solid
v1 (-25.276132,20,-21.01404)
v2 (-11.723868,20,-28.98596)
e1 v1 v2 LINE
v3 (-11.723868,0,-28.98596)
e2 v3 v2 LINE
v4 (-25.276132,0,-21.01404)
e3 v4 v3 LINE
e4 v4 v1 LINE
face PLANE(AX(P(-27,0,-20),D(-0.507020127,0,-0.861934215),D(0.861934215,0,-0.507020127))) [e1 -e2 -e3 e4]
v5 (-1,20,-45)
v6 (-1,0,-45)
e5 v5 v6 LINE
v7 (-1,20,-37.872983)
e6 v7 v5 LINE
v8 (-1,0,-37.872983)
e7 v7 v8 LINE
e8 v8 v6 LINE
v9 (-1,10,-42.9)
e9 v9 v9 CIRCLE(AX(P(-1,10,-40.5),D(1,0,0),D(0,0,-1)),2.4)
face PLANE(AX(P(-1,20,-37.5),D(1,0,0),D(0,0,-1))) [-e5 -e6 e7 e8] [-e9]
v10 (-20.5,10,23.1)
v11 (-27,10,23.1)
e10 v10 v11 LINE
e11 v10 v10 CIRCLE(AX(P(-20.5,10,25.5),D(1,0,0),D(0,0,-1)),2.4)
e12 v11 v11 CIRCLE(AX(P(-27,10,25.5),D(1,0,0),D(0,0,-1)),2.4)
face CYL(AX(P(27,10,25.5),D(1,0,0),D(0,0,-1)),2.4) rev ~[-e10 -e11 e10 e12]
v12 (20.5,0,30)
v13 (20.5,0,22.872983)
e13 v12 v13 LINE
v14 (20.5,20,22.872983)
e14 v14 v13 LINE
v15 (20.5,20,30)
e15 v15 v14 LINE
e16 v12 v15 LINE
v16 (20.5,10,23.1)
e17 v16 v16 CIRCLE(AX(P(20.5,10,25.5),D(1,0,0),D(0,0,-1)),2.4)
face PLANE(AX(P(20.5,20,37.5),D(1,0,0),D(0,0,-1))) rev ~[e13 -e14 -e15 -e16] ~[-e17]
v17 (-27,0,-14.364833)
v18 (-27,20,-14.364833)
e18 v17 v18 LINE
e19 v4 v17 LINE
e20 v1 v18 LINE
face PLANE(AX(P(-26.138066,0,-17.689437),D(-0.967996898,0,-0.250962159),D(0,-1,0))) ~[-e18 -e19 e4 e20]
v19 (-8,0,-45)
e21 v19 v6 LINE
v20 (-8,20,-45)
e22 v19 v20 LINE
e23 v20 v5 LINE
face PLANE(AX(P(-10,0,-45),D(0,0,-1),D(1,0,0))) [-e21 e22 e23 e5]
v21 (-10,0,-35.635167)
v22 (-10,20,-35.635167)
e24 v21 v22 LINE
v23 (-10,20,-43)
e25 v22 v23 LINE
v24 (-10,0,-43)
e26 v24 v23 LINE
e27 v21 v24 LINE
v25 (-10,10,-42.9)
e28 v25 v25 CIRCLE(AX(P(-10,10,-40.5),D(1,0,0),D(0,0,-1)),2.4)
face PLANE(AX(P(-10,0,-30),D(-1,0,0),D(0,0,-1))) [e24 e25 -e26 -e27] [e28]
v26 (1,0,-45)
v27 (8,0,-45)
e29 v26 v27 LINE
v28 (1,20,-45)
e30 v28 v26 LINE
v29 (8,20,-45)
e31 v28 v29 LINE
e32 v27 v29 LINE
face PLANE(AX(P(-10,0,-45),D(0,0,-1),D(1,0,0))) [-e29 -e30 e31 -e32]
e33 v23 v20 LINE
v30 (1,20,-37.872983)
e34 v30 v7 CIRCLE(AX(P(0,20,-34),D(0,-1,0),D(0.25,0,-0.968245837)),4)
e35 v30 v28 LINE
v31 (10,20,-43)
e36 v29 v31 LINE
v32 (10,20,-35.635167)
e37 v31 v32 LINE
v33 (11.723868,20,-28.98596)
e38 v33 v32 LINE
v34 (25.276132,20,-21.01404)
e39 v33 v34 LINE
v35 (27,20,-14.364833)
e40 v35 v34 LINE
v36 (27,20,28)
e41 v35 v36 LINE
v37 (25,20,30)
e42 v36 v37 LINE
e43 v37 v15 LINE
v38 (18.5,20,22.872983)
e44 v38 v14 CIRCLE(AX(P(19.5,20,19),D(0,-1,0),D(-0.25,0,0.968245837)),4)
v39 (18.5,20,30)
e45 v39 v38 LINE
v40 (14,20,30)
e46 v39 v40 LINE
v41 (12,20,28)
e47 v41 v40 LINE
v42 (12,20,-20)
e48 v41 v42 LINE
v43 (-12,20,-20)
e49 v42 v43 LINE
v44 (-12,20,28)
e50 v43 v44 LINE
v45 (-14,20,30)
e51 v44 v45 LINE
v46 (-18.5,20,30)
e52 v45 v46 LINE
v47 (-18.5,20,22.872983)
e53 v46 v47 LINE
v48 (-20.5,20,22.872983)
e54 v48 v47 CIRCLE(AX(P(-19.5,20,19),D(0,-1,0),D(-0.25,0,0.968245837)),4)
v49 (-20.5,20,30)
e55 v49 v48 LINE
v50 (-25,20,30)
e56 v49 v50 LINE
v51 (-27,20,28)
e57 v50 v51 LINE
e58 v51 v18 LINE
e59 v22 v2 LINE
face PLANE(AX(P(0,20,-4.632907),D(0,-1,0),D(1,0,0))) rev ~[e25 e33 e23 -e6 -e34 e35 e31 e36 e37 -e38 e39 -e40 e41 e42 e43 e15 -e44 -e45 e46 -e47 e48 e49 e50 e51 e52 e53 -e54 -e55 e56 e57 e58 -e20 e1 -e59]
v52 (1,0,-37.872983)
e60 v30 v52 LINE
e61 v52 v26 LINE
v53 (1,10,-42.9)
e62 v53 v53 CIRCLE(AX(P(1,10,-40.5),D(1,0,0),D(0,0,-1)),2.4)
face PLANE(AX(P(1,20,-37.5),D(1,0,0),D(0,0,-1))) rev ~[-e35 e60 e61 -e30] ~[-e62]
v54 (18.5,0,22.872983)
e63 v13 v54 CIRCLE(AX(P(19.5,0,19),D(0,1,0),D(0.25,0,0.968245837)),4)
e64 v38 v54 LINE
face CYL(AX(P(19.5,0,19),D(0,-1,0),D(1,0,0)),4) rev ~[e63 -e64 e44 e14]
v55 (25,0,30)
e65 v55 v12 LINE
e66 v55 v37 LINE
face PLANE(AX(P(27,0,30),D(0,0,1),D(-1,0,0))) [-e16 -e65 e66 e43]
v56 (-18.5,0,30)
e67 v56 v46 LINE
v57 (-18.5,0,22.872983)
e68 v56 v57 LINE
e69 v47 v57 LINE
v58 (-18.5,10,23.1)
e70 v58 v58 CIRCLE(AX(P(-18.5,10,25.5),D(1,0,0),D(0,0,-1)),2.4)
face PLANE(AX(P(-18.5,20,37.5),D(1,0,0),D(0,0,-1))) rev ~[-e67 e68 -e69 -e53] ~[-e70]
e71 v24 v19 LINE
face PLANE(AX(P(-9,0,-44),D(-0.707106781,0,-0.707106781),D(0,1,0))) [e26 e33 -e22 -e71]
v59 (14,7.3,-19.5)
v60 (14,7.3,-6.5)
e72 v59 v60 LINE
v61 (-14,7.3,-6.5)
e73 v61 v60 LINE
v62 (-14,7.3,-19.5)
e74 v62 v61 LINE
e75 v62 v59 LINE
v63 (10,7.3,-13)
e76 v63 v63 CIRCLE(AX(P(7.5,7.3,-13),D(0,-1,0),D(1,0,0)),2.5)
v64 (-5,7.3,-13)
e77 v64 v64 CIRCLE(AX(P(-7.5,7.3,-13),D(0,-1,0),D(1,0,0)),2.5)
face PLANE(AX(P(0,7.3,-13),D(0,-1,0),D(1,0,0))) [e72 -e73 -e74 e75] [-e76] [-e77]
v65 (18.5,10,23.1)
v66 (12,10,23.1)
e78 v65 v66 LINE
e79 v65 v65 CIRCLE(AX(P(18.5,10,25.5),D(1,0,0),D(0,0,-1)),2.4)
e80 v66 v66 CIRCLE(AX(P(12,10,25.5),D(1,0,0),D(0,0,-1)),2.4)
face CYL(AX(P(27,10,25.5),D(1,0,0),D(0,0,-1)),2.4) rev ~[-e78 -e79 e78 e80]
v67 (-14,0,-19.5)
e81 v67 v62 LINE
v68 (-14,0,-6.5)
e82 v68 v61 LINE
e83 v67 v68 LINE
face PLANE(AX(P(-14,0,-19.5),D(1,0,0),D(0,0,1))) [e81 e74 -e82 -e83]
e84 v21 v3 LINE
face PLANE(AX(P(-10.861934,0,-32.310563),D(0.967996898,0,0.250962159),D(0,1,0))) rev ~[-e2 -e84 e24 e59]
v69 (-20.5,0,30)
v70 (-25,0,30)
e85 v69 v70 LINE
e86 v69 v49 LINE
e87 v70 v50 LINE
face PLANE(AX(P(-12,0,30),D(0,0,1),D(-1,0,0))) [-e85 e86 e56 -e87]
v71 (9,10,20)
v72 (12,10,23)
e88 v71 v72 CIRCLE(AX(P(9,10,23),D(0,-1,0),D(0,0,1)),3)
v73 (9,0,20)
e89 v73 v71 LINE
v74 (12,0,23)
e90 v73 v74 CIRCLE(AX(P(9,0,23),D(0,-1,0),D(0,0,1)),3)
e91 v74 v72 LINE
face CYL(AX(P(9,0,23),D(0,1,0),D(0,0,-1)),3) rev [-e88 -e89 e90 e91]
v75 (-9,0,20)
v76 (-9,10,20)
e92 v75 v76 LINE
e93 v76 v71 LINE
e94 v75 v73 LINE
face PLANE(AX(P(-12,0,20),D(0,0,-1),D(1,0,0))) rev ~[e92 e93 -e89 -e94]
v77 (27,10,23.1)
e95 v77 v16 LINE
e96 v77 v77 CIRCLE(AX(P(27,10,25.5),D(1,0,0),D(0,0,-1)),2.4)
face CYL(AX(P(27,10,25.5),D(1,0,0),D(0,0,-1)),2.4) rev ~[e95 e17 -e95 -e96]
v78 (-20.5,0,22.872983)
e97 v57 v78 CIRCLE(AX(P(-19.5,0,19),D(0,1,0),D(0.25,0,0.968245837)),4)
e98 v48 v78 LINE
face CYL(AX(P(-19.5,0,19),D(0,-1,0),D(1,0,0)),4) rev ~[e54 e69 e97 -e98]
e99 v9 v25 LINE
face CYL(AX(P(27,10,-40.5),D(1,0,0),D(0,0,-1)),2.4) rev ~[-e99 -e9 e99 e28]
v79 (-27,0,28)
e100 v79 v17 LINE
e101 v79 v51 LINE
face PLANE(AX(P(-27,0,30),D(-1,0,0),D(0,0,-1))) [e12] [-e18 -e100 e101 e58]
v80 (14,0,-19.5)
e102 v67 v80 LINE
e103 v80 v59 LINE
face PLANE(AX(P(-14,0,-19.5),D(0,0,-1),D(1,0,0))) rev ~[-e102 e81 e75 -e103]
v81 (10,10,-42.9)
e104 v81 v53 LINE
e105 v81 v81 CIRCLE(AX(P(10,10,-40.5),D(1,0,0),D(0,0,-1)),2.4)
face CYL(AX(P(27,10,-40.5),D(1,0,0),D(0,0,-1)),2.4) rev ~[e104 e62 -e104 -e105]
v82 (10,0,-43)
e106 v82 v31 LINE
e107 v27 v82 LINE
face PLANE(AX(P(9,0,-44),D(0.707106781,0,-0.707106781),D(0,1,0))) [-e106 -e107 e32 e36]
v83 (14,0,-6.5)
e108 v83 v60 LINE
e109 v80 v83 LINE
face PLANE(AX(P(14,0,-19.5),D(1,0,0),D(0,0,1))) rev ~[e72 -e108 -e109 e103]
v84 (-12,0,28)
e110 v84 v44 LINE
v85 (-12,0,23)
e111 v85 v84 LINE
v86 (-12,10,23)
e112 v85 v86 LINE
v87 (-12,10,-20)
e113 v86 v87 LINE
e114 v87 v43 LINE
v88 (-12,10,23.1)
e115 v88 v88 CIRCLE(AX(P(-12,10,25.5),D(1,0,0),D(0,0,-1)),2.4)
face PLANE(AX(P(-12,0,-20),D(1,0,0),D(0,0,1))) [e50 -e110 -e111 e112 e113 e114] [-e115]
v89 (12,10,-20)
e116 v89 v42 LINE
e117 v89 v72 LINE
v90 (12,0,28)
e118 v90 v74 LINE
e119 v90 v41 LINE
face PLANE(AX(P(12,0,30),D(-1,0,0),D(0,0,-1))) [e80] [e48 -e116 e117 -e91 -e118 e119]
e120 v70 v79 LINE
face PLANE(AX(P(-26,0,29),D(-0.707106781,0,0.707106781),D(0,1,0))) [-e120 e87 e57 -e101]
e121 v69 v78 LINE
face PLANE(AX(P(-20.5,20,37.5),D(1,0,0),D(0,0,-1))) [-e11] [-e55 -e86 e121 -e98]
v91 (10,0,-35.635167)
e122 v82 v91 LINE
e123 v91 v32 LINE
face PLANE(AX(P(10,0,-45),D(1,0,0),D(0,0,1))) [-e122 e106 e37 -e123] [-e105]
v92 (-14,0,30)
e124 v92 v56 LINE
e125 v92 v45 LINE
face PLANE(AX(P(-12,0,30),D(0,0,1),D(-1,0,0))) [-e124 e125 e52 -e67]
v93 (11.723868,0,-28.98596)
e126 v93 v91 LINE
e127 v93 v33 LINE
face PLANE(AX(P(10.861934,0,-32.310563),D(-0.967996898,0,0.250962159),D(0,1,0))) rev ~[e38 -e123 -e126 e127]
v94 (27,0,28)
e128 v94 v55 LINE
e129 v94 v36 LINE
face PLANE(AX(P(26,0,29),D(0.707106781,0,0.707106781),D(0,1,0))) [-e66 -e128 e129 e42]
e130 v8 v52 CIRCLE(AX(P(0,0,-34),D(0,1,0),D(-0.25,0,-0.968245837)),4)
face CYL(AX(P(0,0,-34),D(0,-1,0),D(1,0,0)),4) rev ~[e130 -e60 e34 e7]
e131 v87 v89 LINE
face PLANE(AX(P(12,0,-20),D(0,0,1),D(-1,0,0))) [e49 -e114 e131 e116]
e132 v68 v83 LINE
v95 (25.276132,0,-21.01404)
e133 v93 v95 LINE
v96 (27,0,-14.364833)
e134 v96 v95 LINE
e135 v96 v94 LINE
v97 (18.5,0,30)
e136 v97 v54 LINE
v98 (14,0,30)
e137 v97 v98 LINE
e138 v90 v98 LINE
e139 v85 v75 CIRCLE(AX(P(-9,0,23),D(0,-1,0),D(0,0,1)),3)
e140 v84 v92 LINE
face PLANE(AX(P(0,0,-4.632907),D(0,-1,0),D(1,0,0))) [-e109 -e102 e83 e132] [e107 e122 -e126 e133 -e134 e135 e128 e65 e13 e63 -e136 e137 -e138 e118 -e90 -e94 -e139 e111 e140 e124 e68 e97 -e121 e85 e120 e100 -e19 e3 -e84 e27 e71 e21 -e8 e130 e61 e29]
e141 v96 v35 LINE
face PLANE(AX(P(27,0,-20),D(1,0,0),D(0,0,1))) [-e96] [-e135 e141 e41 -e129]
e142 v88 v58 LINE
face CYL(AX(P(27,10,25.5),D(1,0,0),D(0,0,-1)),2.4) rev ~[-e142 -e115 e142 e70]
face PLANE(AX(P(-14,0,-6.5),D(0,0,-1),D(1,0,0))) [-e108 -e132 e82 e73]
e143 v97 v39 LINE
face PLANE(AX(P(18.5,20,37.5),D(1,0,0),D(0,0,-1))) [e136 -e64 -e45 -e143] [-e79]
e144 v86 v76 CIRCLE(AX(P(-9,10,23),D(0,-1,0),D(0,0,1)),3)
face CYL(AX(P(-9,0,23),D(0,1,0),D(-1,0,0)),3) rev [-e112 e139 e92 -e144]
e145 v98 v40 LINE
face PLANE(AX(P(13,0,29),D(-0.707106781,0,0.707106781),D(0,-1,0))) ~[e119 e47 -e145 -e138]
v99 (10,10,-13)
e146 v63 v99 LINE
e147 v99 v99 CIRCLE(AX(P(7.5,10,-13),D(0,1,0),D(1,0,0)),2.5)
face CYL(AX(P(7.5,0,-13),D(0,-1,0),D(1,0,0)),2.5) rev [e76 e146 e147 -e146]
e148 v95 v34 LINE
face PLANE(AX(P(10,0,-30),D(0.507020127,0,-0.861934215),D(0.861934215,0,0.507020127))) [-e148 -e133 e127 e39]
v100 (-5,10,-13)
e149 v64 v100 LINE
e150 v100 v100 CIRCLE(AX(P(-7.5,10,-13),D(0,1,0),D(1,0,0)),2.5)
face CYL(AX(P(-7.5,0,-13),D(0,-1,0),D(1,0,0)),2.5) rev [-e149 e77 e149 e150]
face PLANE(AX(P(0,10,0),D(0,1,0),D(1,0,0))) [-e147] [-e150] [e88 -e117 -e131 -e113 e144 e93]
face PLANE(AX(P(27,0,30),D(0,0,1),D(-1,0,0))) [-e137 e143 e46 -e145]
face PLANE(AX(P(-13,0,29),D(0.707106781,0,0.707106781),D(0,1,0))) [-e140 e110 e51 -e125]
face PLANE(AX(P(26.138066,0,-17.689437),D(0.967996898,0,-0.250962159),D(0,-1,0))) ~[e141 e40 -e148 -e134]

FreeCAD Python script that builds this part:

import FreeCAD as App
import Part
import Sketcher

V = App.Vector
Q = App.Units.Quantity


def edges_at(feature, points):
    """Names of the edges that pass closest to the given points."""
    edges = feature.Shape.Edges
    near = lambda p: min(range(len(edges)), key=lambda i: edges[i].distToShape(Part.Vertex(*p))[0])
    return sorted({f"Edge{near(p) + 1}" for p in points})


def add_polygon(sketch, points):
    """Adds a closed chain of lines whose ends are joined by coincident constraints."""
    first, n = sketch.GeometryCount, len(points)
    for a, b in zip(points, points[1:] + points[:1]):
        sketch.addGeometry(Part.LineSegment(App.Vector(*a, 0), App.Vector(*b, 0)), False)
    for i in range(n):
        sketch.addConstraint(Sketcher.Constraint("Coincident", first + i, 2, first + (i + 1) % n, 1))

doc = App.newDocument("Part")
body = doc.addObject("PartDesign::Body", "Body")

# Sketch on XZ plane
sketch1 = doc.addObject("Sketcher::SketchObject", "Sketch")
body.addObject(sketch1)
sketch1.AttachmentSupport = (doc.XZ_Plane, [""])
sketch1.MapMode = "FlatFace"
add_polygon(sketch1, [(-12, -20), (-12, 20), (12, 20), (12, -20)])  # lines 0-3
sketch1.addGeometry(Part.Circle(V(-7.5, -13, 0), V(0, 0, 1), 2.5), False)  # 4
sketch1.addGeometry(Part.Circle(V(7.5, -13, 0), V(0, 0, 1), 2.5), False)  # 5
sketch1.addConstraint(Sketcher.Constraint("Vertical", 0))
sketch1.addConstraint(Sketcher.Constraint("Horizontal", 1))
sketch1.addConstraint(Sketcher.Constraint("Vertical", 2))
sketch1.addConstraint(Sketcher.Constraint("Horizontal", 3))
sketch1.addConstraint(Sketcher.Constraint("Equal", 4, 5))
sketch1.addConstraint(Sketcher.Constraint("Symmetric", 0, 2, 2, 2, -1, 1))
sketch1.addConstraint(Sketcher.Constraint("Symmetric", 4, 3, 5, 3, -2))
sketch1.addConstraint(Sketcher.Constraint("Diameter", 4, Q("5 mm")))
sketch1.addConstraint(Sketcher.Constraint("DistanceX", 1, 1, 1, 2, Q("24 mm")))
sketch1.addConstraint(Sketcher.Constraint("DistanceY", 0, 1, 0, 2, Q("40 mm")))
sketch1.addConstraint(Sketcher.Constraint("DistanceY", 4, 3, -1, 1, Q("13 mm")))
sketch1.addConstraint(Sketcher.Constraint("DistanceX", 4, 3, 5, 3, Q("15 mm")))
pad1 = doc.addObject("PartDesign::Pad", "Pad")
body.addObject(pad1)
pad1.Profile = sketch1
pad1.Length = 10
pad1.Reversed = True

# Sketch on XZ plane
sketch2 = doc.addObject("Sketcher::SketchObject", "Sketch001")
body.addObject(sketch2)
sketch2.AttachmentSupport = (doc.XZ_Plane, [""])
sketch2.MapMode = "FlatFace"
add_polygon(sketch2, [(-12, -20), (-12, 30), (-27, 30), (-27, -20), (-10, -30), (-10, -45), (10, -45), (10, -30), (27, -20), (27, 30), (12, 30), (12, -20)])  # lines 0-11
sketch2.addGeometry(Part.Circle(V(0, -34, 0), V(0, 0, 1), 4), False)  # 12
sketch2.addGeometry(Part.Circle(V(-19.5, 19, 0), V(0, 0, 1), 4), False)  # 13
sketch2.addGeometry(Part.Circle(V(19.5, 19, 0), V(0, 0, 1), 4), False)  # 14
sketch2.addConstraint(Sketcher.Constraint("Vertical", 0))
sketch2.addConstraint(Sketcher.Constraint("Horizontal", 1))
sketch2.addConstraint(Sketcher.Constraint("Vertical", 2))
sketch2.addConstraint(Sketcher.Constraint("Vertical", 4))
sketch2.addConstraint(Sketcher.Constraint("Horizontal", 5))
sketch2.addConstraint(Sketcher.Constraint("Vertical", 6))
sketch2.addConstraint(Sketcher.Constraint("Vertical", 8))
sketch2.addConstraint(Sketcher.Constraint("Horizontal", 9))
sketch2.addConstraint(Sketcher.Constraint("Vertical", 10))
sketch2.addConstraint(Sketcher.Constraint("Horizontal", 11))
sketch2.addConstraint(Sketcher.Constraint("Equal", 12, 13))
sketch2.addConstraint(Sketcher.Constraint("Equal", 13, 14))
sketch2.addConstraint(Sketcher.Constraint("Symmetric", 13, 3, 14, 3, -2))
sketch2.addConstraint(Sketcher.Constraint("Symmetric", 3, 2, 6, 2, -2))
sketch2.addConstraint(Sketcher.Constraint("Symmetric", 2, 2, 7, 2, -2))
sketch2.addConstraint(Sketcher.Constraint("Symmetric", 0, 2, 9, 2, -2))
sketch2.addConstraint(Sketcher.Constraint("PointOnObject", 12, 3, -2))
sketch2.addConstraint(Sketcher.Constraint("Horizontal", 7, 2, 10, 2))
sketch2.addConstraint(Sketcher.Constraint("Equal", 9, 4))
sketch2.addConstraint(Sketcher.Constraint("Diameter", 12, Q("8 mm")))
sketch2.addConstraint(Sketcher.Constraint("DistanceX", 1, 2, 1, 1, Q("15 mm")))
sketch2.addConstraint(Sketcher.Constraint("DistanceX", 5, 1, 5, 2, Q("20 mm")))
sketch2.addConstraint(Sketcher.Constraint("DistanceX", 11, 2, 11, 1, Q("24 mm")))
sketch2.addConstraint(Sketcher.Constraint("DistanceY", 0, 1, 0, 2, Q("50 mm")))
sketch2.addConstraint(Sketcher.Constraint("DistanceY", 12, 3, -1, 1, Q("34 mm")))
sketch2.addConstraint(Sketcher.Constraint("DistanceY", -1, 1, 13, 3, Q("19 mm")))
sketch2.addConstraint(Sketcher.Constraint("DistanceY", -1, 1, 0, 2, Q("30 mm")))
sketch2.addConstraint(Sketcher.Constraint("DistanceY", 3, 2, -1, 1, Q("30 mm")))
sketch2.addConstraint(Sketcher.Constraint("DistanceX", 13, 3, 14, 3, Q("39 mm")))
pad2 = doc.addObject("PartDesign::Pad", "Pad001")
body.addObject(pad2)
pad2.Profile = sketch2
pad2.Length = 20
pad2.Reversed = True

# Sketch on XZ plane
sketch3 = doc.addObject("Sketcher::SketchObject", "Sketch002")
body.addObject(sketch3)
sketch3.AttachmentSupport = (doc.XZ_Plane, [""])
sketch3.MapMode = "FlatFace"
sketch3.AttachmentOffset = App.Placement(V(0, 0, -20), App.Rotation())
add_polygon(sketch3, [(18.5, 22.5), (18.5, 37.5), (20.5, 37.5), (20.5, 22.5)])  # lines 0-3
add_polygon(sketch3, [(-20.5, 22.5), (-20.5, 37.5), (-18.5, 37.5), (-18.5, 22.5)])  # lines 4-7
add_polygon(sketch3, [(-1, -52.5), (-1, -37.5), (1, -37.5), (1, -52.5)])  # lines 8-11
sketch3.addConstraint(Sketcher.Constraint("Vertical", 0))
sketch3.addConstraint(Sketcher.Constraint("Horizontal", 1))
sketch3.addConstraint(Sketcher.Constraint("Vertical", 2))
sketch3.addConstraint(Sketcher.Constraint("Horizontal", 3))
sketch3.addConstraint(Sketcher.Constraint("Vertical", 4))
sketch3.addConstraint(Sketcher.Constraint("Horizontal", 5))
sketch3.addConstraint(Sketcher.Constraint("Vertical", 6))
sketch3.addConstraint(Sketcher.Constraint("Horizontal", 7))
sketch3.addConstraint(Sketcher.Constraint("Vertical", 8))
sketch3.addConstraint(Sketcher.Constraint("Horizontal", 9))
sketch3.addConstraint(Sketcher.Constraint("Vertical", 10))
sketch3.addConstraint(Sketcher.Constraint("Horizontal", 11))
sketch3.addConstraint(Sketcher.Constraint("Symmetric", 1, 2, 4, 2, -2))
sketch3.addConstraint(Sketcher.Constraint("Symmetric", 3, 2, 6, 2, -2))
sketch3.addConstraint(Sketcher.Constraint("Equal", 7, 9))
sketch3.addConstraint(Sketcher.Constraint("Equal", 6, 8))
sketch3.addConstraint(Sketcher.Constraint("DistanceX", 1, 1, 1, 2, Q("2 mm")))
sketch3.addConstraint(Sketcher.Constraint("DistanceY", 0, 1, 0, 2, Q("15 mm")))
sketch3.addConstraint(Sketcher.Constraint("DistanceX", 8, 2, -1, 1, Q("1 mm")))
sketch3.addConstraint(Sketcher.Constraint("DistanceX", 4, 2, 0, 2, Q("39 mm")))
sketch3.addConstraint(Sketcher.Constraint("DistanceY", 8, 2, 6, 2, Q("60 mm")))
sketch3.addConstraint(Sketcher.Constraint("DistanceY", -1, 1, 0, 2, Q("37.5 mm")))
pocket1 = doc.addObject("PartDesign::Pocket", "Pocket")
body.addObject(pocket1)
pocket1.Profile = sketch3
pocket1.Length = 20
pocket1.Reversed = True

# Sketch on YZ plane
sketch4 = doc.addObject("Sketcher::SketchObject", "Sketch003")
body.addObject(sketch4)
sketch4.AttachmentSupport = (doc.YZ_Plane, [""])
sketch4.MapMode = "FlatFace"
sketch4.AttachmentOffset = App.Placement(V(0, 0, 27), App.Rotation())
sketch4.addGeometry(Part.Circle(V(10, 25.5, 0), V(0, 0, 1), 2.4), False)
sketch4.addGeometry(Part.Circle(V(10, -40.5, 0), V(0, 0, 1), 2.4), False)
sketch4.addConstraint(Sketcher.Constraint("Equal", 0, 1))
sketch4.addConstraint(Sketcher.Constraint("Vertical", 0, 3, 1, 3))
sketch4.addConstraint(Sketcher.Constraint("Diameter", 0, Q("4.8 mm")))
sketch4.addConstraint(Sketcher.Constraint("DistanceX", -1, 1, 0, 3, Q("10 mm")))
sketch4.addConstraint(Sketcher.Constraint("DistanceY", 1, 3, 0, 3, Q("66 mm")))
sketch4.addConstraint(Sketcher.Constraint("DistanceY", -1, 1, 0, 3, Q("25.5 mm")))
pocket2 = doc.addObject("PartDesign::Pocket", "Pocket001")
body.addObject(pocket2)
pocket2.Profile = sketch4
pocket2.Length = 56
doc.recompute()

chamfer = doc.addObject("PartDesign::Chamfer", "Chamfer")
body.addObject(chamfer)
chamfer.Base = (pocket2, edges_at(pocket2, [
    (12, 10, 30),
    (27, 10, 30),
    (10, 10, -45),
    (-10, 10, -45),
    (-27, 10, 30),
    (-12, 10, 30),
]))
chamfer.Size = 2
doc.recompute()

chamfer2 = doc.addObject("PartDesign::Chamfer", "Chamfer001")
body.addObject(chamfer2)
chamfer2.Base = (chamfer, edges_at(chamfer, [(27, 10, -20)]))
chamfer2.ChamferType = "Two distances"
chamfer2.Size = 5.635167
chamfer2.Size2 = 2
doc.recompute()

chamfer3 = doc.addObject("PartDesign::Chamfer", "Chamfer002")
body.addObject(chamfer3)
chamfer3.Base = (chamfer2, edges_at(chamfer2, [(10, 10, -30)]))
chamfer3.ChamferType = "Two distances"
chamfer3.Size = 2
chamfer3.Size2 = 5.635167
doc.recompute()

chamfer4 = doc.addObject("PartDesign::Chamfer", "Chamfer003")
body.addObject(chamfer4)
chamfer4.Base = (chamfer3, edges_at(chamfer3, [(-10, 10, -30)]))
chamfer4.ChamferType = "Two distances"
chamfer4.Size = 5.635167
chamfer4.Size2 = 2
doc.recompute()

chamfer5 = doc.addObject("PartDesign::Chamfer", "Chamfer004")
body.addObject(chamfer5)
chamfer5.Base = (chamfer4, edges_at(chamfer4, [(-27, 10, -20)]))
chamfer5.ChamferType = "Two distances"
chamfer5.Size = 2
chamfer5.Size2 = 5.635167
doc.recompute()

fillet = doc.addObject("PartDesign::Fillet", "Fillet")
body.addObject(fillet)
fillet.Base = (chamfer5, edges_at(chamfer5, [(12, 5, 20), (-12, 5, 20)]))
fillet.Radius = 3

# Sketch on XZ plane
sketch5 = doc.addObject("Sketcher::SketchObject", "Sketch004")
body.addObject(sketch5)
sketch5.AttachmentSupport = (doc.XZ_Plane, [""])
sketch5.MapMode = "FlatFace"
add_polygon(sketch5, [(-14, -6), (-14, -20), (14, -20), (14, -6)])  # lines 0-3
sketch5.addConstraint(Sketcher.Constraint("Vertical", 0))
sketch5.addConstraint(Sketcher.Constraint("Horizontal", 1))
sketch5.addConstraint(Sketcher.Constraint("Vertical", 2))
sketch5.addConstraint(Sketcher.Constraint("Horizontal", 3))
sketch5.addConstraint(Sketcher.Constraint("DistanceX", 1, 1, 1, 2, Q("28 mm")))
sketch5.addConstraint(Sketcher.Constraint("DistanceY", 0, 2, 0, 1, Q("13 mm")))
sketch5.addConstraint(Sketcher.Constraint("DistanceX", 0, 2, -1, 1, Q("14 mm")))
sketch5.addConstraint(Sketcher.Constraint("DistanceY", 0, 2, -1, 1, Q("19.5 mm")))
pocket3 = doc.addObject("PartDesign::Pocket", "Pocket002")
body.addObject(pocket3)
pocket3.Profile = sketch5
pocket3.Length = 7.3

doc.recompute()
